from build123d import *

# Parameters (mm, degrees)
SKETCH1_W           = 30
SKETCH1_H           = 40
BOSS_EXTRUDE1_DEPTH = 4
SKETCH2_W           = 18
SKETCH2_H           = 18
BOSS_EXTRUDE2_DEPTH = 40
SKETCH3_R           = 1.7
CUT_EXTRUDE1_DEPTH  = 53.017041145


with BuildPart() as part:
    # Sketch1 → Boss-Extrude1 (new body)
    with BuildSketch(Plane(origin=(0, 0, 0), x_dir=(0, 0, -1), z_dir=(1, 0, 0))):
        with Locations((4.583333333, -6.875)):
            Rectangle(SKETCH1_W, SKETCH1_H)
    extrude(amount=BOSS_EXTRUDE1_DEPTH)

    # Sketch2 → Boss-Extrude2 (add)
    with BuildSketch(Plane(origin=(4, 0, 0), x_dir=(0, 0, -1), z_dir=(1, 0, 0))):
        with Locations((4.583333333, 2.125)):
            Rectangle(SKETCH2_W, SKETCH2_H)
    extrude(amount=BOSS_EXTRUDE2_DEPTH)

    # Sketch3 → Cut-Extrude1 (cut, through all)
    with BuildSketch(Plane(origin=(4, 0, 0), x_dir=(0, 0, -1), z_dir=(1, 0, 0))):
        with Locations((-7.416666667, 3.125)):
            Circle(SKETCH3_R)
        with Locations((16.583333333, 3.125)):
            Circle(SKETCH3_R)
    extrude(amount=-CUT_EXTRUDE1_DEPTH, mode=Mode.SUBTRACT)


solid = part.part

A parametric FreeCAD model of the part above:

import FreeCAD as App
import Part
import Sketcher

doc = App.newDocument("Part")
body = doc.addObject("PartDesign::Body", "Body")

# Sketch on YZ plane
sketch1 = body.newObject("Sketcher::SketchObject", "Sketch")
sketch1.AttachmentSupport = (doc.getObject("YZ_Plane"), [""])
sketch1.MapMode = "FlatFace"
sketch1.addGeometry([
    Part.LineSegment(App.Vector(13, 10, 0), App.Vector(-27, 10, 0)),
    Part.LineSegment(App.Vector(-27, 10, 0), App.Vector(-27, -20, 0)),
    Part.LineSegment(App.Vector(-27, -20, 0), App.Vector(13, -20, 0)),
    Part.LineSegment(App.Vector(13, -20, 0), App.Vector(13, 10, 0)),
], False)
sketch1.addConstraint([
    Sketcher.Constraint("Coincident", 0, 2, 1, 1),
    Sketcher.Constraint("Coincident", 1, 2, 2, 1),
    Sketcher.Constraint("Coincident", 2, 2, 3, 1),
    Sketcher.Constraint("Coincident", 3, 2, 0, 1),
    Sketcher.Constraint("Horizontal", 0),
    Sketcher.Constraint("Vertical", 1),
    Sketcher.Constraint("Horizontal", 2),
    Sketcher.Constraint("Vertical", 3),
    Sketcher.Constraint("DistanceX", 0, 2, 0, 1, 40.0),
    Sketcher.Constraint("DistanceY", 1, 2, 1, 1, 30.0),
    Sketcher.Constraint("DistanceX", 0, 2, -1, 1, 26.875),
    Sketcher.Constraint("DistanceY", -1, 1, 0, 2, 10.416667),
])
pad1 = body.newObject("PartDesign::Pad", "Pad")
pad1.Profile = sketch1
pad1.Length = 4

# Sketch on YZ plane
sketch2 = body.newObject("Sketcher::SketchObject", "Sketch001")
sketch2.AttachmentSupport = (doc.getObject("YZ_Plane"), [""])
sketch2.MapMode = "FlatFace"
sketch2.AttachmentOffset = App.Placement(App.Vector(0, 0, 4), App.Rotation())
sketch2.addGeometry([
    Part.LineSegment(App.Vector(11, 4, 0), App.Vector(-7, 4, 0)),
    Part.LineSegment(App.Vector(-7, 4, 0), App.Vector(-7, -14, 0)),
    Part.LineSegment(App.Vector(-7, -14, 0), App.Vector(11, -14, 0)),
    Part.LineSegment(App.Vector(11, -14, 0), App.Vector(11, 4, 0)),
], False)
sketch2.addConstraint([
    Sketcher.Constraint("Coincident", 0, 2, 1, 1),
    Sketcher.Constraint("Coincident", 1, 2, 2, 1),
    Sketcher.Constraint("Coincident", 2, 2, 3, 1),
    Sketcher.Constraint("Coincident", 3, 2, 0, 1),
    Sketcher.Constraint("Horizontal", 0),
    Sketcher.Constraint("Vertical", 1),
    Sketcher.Constraint("Horizontal", 2),
    Sketcher.Constraint("Vertical", 3),
    Sketcher.Constraint("Equal", 2, 1),
    Sketcher.Constraint("DistanceX", 0, 2, 0, 1, 18.0),
    Sketcher.Constraint("DistanceX", 0, 2, -1, 1, 6.875),
    Sketcher.Constraint("DistanceY", -1, 1, 0, 2, 4.416667),
])
pad2 = body.newObject("PartDesign::Pad", "Pad001")
pad2.Profile = sketch2
pad2.Length = 40

# Sketch on YZ plane
sketch3 = body.newObject("Sketcher::SketchObject", "Sketch002")
sketch3.AttachmentSupport = (doc.getObject("YZ_Plane"), [""])
sketch3.MapMode = "FlatFace"
sketch3.AttachmentOffset = App.Placement(App.Vector(0, 0, 4), App.Rotation())
sketch3.addGeometry([
    Part.Circle(App.Vector(3.1, 7.4, 0), App.Vector(0, 0, 1), 1.7),
    Part.Circle(App.Vector(3.1, -16.6, 0), App.Vector(0, 0, 1), 1.7),
], False)
sketch3.addConstraint([
    Sketcher.Constraint("Equal", 0, 1),
    Sketcher.Constraint("Vertical", 0, 3, 1, 3),
    Sketcher.Constraint("Diameter", 0, 3.4),
    Sketcher.Constraint("DistanceY", 1, 3, 0, 3, 24.0),
    Sketcher.Constraint("DistanceX", -1, 1, 0, 3, 3.125),
    Sketcher.Constraint("DistanceY", -1, 1, 0, 3, 7.416667),
])
pocket1 = body.newObject("PartDesign::Pocket", "Pocket")
pocket1.Profile = sketch3
pocket1.Type = "ThroughAll"

doc.recompute()
